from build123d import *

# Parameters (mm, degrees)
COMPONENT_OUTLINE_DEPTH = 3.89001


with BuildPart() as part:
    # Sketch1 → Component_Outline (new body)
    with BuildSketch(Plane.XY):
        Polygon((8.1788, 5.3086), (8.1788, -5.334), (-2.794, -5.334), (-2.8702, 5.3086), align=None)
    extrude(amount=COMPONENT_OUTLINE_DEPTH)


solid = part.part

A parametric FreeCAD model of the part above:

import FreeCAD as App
import Part
import Sketcher
from FreeCAD import Vector
Q = App.Units.Quantity

doc = App.newDocument("Part")
params = doc.addObject("Spreadsheet::Sheet", "Params")
for row, (alias, value) in enumerate([
    ("sketch1_width", "0.435 in"),
    ("sketch1_width2", "0.432 in"),
    ("sketch1_height", "0.419 in"),
    ("pad1_length", "3.89001 mm"),
], start=1):
    params.set(f"A{row}", alias)
    params.set(f"B{row}", "=" + value)
    params.setAlias(f"B{row}", alias)

body = doc.addObject("PartDesign::Body", "Body")

# Sketch on XY plane
sketch1 = body.newObject("Sketcher::SketchObject", "Sketch")
sketch1.AttachmentSupport = (doc.getObject("XY_Plane"), [""])
sketch1.MapMode = "FlatFace"
sketch1.addGeometry([
    Part.LineSegment(Vector(8, -5, 0), Vector(8, 5, 0)),
    Part.LineSegment(Vector(8, 5, 0), Vector(-3, 5, 0)),
    Part.LineSegment(Vector(-3, 5, 0), Vector(-3, -5, 0)),
    Part.LineSegment(Vector(-3, -5, 0), Vector(8, -5, 0)),
], False)
sketch1.addConstraint([
    Sketcher.Constraint("Coincident", 0, 2, 1, 1),
    Sketcher.Constraint("Coincident", 1, 2, 2, 1),
    Sketcher.Constraint("Coincident", 2, 2, 3, 1),
    Sketcher.Constraint("Coincident", 3, 2, 0, 1),
    Sketcher.Constraint("Vertical", 0),
    Sketcher.Constraint("Horizontal", 1),
    Sketcher.Constraint("Horizontal", 3),
    Sketcher.Constraint("DistanceX", 1, 2, 1, 1, Q("0.435 in")),
    Sketcher.Constraint("DistanceX", 3, 1, 3, 2, Q("0.432 in")),
    Sketcher.Constraint("DistanceY", 0, 1, 0, 2, Q("0.419 in")),
    Sketcher.Constraint("DistanceX", 2, 2, -1, 1, Q("0.11 in")),
    Sketcher.Constraint("DistanceY", 2, 2, -1, 1, Q("0.21 in")),
])
sketch1.setExpression("Constraints[7]", "Params.sketch1_width")
sketch1.setExpression("Constraints[8]", "Params.sketch1_width2")
sketch1.setExpression("Constraints[9]", "Params.sketch1_height")
pad1 = body.newObject("PartDesign::Pad", "Pad")
pad1.Profile = sketch1
pad1.setExpression("Length", "Params.pad1_length")

doc.recompute()
